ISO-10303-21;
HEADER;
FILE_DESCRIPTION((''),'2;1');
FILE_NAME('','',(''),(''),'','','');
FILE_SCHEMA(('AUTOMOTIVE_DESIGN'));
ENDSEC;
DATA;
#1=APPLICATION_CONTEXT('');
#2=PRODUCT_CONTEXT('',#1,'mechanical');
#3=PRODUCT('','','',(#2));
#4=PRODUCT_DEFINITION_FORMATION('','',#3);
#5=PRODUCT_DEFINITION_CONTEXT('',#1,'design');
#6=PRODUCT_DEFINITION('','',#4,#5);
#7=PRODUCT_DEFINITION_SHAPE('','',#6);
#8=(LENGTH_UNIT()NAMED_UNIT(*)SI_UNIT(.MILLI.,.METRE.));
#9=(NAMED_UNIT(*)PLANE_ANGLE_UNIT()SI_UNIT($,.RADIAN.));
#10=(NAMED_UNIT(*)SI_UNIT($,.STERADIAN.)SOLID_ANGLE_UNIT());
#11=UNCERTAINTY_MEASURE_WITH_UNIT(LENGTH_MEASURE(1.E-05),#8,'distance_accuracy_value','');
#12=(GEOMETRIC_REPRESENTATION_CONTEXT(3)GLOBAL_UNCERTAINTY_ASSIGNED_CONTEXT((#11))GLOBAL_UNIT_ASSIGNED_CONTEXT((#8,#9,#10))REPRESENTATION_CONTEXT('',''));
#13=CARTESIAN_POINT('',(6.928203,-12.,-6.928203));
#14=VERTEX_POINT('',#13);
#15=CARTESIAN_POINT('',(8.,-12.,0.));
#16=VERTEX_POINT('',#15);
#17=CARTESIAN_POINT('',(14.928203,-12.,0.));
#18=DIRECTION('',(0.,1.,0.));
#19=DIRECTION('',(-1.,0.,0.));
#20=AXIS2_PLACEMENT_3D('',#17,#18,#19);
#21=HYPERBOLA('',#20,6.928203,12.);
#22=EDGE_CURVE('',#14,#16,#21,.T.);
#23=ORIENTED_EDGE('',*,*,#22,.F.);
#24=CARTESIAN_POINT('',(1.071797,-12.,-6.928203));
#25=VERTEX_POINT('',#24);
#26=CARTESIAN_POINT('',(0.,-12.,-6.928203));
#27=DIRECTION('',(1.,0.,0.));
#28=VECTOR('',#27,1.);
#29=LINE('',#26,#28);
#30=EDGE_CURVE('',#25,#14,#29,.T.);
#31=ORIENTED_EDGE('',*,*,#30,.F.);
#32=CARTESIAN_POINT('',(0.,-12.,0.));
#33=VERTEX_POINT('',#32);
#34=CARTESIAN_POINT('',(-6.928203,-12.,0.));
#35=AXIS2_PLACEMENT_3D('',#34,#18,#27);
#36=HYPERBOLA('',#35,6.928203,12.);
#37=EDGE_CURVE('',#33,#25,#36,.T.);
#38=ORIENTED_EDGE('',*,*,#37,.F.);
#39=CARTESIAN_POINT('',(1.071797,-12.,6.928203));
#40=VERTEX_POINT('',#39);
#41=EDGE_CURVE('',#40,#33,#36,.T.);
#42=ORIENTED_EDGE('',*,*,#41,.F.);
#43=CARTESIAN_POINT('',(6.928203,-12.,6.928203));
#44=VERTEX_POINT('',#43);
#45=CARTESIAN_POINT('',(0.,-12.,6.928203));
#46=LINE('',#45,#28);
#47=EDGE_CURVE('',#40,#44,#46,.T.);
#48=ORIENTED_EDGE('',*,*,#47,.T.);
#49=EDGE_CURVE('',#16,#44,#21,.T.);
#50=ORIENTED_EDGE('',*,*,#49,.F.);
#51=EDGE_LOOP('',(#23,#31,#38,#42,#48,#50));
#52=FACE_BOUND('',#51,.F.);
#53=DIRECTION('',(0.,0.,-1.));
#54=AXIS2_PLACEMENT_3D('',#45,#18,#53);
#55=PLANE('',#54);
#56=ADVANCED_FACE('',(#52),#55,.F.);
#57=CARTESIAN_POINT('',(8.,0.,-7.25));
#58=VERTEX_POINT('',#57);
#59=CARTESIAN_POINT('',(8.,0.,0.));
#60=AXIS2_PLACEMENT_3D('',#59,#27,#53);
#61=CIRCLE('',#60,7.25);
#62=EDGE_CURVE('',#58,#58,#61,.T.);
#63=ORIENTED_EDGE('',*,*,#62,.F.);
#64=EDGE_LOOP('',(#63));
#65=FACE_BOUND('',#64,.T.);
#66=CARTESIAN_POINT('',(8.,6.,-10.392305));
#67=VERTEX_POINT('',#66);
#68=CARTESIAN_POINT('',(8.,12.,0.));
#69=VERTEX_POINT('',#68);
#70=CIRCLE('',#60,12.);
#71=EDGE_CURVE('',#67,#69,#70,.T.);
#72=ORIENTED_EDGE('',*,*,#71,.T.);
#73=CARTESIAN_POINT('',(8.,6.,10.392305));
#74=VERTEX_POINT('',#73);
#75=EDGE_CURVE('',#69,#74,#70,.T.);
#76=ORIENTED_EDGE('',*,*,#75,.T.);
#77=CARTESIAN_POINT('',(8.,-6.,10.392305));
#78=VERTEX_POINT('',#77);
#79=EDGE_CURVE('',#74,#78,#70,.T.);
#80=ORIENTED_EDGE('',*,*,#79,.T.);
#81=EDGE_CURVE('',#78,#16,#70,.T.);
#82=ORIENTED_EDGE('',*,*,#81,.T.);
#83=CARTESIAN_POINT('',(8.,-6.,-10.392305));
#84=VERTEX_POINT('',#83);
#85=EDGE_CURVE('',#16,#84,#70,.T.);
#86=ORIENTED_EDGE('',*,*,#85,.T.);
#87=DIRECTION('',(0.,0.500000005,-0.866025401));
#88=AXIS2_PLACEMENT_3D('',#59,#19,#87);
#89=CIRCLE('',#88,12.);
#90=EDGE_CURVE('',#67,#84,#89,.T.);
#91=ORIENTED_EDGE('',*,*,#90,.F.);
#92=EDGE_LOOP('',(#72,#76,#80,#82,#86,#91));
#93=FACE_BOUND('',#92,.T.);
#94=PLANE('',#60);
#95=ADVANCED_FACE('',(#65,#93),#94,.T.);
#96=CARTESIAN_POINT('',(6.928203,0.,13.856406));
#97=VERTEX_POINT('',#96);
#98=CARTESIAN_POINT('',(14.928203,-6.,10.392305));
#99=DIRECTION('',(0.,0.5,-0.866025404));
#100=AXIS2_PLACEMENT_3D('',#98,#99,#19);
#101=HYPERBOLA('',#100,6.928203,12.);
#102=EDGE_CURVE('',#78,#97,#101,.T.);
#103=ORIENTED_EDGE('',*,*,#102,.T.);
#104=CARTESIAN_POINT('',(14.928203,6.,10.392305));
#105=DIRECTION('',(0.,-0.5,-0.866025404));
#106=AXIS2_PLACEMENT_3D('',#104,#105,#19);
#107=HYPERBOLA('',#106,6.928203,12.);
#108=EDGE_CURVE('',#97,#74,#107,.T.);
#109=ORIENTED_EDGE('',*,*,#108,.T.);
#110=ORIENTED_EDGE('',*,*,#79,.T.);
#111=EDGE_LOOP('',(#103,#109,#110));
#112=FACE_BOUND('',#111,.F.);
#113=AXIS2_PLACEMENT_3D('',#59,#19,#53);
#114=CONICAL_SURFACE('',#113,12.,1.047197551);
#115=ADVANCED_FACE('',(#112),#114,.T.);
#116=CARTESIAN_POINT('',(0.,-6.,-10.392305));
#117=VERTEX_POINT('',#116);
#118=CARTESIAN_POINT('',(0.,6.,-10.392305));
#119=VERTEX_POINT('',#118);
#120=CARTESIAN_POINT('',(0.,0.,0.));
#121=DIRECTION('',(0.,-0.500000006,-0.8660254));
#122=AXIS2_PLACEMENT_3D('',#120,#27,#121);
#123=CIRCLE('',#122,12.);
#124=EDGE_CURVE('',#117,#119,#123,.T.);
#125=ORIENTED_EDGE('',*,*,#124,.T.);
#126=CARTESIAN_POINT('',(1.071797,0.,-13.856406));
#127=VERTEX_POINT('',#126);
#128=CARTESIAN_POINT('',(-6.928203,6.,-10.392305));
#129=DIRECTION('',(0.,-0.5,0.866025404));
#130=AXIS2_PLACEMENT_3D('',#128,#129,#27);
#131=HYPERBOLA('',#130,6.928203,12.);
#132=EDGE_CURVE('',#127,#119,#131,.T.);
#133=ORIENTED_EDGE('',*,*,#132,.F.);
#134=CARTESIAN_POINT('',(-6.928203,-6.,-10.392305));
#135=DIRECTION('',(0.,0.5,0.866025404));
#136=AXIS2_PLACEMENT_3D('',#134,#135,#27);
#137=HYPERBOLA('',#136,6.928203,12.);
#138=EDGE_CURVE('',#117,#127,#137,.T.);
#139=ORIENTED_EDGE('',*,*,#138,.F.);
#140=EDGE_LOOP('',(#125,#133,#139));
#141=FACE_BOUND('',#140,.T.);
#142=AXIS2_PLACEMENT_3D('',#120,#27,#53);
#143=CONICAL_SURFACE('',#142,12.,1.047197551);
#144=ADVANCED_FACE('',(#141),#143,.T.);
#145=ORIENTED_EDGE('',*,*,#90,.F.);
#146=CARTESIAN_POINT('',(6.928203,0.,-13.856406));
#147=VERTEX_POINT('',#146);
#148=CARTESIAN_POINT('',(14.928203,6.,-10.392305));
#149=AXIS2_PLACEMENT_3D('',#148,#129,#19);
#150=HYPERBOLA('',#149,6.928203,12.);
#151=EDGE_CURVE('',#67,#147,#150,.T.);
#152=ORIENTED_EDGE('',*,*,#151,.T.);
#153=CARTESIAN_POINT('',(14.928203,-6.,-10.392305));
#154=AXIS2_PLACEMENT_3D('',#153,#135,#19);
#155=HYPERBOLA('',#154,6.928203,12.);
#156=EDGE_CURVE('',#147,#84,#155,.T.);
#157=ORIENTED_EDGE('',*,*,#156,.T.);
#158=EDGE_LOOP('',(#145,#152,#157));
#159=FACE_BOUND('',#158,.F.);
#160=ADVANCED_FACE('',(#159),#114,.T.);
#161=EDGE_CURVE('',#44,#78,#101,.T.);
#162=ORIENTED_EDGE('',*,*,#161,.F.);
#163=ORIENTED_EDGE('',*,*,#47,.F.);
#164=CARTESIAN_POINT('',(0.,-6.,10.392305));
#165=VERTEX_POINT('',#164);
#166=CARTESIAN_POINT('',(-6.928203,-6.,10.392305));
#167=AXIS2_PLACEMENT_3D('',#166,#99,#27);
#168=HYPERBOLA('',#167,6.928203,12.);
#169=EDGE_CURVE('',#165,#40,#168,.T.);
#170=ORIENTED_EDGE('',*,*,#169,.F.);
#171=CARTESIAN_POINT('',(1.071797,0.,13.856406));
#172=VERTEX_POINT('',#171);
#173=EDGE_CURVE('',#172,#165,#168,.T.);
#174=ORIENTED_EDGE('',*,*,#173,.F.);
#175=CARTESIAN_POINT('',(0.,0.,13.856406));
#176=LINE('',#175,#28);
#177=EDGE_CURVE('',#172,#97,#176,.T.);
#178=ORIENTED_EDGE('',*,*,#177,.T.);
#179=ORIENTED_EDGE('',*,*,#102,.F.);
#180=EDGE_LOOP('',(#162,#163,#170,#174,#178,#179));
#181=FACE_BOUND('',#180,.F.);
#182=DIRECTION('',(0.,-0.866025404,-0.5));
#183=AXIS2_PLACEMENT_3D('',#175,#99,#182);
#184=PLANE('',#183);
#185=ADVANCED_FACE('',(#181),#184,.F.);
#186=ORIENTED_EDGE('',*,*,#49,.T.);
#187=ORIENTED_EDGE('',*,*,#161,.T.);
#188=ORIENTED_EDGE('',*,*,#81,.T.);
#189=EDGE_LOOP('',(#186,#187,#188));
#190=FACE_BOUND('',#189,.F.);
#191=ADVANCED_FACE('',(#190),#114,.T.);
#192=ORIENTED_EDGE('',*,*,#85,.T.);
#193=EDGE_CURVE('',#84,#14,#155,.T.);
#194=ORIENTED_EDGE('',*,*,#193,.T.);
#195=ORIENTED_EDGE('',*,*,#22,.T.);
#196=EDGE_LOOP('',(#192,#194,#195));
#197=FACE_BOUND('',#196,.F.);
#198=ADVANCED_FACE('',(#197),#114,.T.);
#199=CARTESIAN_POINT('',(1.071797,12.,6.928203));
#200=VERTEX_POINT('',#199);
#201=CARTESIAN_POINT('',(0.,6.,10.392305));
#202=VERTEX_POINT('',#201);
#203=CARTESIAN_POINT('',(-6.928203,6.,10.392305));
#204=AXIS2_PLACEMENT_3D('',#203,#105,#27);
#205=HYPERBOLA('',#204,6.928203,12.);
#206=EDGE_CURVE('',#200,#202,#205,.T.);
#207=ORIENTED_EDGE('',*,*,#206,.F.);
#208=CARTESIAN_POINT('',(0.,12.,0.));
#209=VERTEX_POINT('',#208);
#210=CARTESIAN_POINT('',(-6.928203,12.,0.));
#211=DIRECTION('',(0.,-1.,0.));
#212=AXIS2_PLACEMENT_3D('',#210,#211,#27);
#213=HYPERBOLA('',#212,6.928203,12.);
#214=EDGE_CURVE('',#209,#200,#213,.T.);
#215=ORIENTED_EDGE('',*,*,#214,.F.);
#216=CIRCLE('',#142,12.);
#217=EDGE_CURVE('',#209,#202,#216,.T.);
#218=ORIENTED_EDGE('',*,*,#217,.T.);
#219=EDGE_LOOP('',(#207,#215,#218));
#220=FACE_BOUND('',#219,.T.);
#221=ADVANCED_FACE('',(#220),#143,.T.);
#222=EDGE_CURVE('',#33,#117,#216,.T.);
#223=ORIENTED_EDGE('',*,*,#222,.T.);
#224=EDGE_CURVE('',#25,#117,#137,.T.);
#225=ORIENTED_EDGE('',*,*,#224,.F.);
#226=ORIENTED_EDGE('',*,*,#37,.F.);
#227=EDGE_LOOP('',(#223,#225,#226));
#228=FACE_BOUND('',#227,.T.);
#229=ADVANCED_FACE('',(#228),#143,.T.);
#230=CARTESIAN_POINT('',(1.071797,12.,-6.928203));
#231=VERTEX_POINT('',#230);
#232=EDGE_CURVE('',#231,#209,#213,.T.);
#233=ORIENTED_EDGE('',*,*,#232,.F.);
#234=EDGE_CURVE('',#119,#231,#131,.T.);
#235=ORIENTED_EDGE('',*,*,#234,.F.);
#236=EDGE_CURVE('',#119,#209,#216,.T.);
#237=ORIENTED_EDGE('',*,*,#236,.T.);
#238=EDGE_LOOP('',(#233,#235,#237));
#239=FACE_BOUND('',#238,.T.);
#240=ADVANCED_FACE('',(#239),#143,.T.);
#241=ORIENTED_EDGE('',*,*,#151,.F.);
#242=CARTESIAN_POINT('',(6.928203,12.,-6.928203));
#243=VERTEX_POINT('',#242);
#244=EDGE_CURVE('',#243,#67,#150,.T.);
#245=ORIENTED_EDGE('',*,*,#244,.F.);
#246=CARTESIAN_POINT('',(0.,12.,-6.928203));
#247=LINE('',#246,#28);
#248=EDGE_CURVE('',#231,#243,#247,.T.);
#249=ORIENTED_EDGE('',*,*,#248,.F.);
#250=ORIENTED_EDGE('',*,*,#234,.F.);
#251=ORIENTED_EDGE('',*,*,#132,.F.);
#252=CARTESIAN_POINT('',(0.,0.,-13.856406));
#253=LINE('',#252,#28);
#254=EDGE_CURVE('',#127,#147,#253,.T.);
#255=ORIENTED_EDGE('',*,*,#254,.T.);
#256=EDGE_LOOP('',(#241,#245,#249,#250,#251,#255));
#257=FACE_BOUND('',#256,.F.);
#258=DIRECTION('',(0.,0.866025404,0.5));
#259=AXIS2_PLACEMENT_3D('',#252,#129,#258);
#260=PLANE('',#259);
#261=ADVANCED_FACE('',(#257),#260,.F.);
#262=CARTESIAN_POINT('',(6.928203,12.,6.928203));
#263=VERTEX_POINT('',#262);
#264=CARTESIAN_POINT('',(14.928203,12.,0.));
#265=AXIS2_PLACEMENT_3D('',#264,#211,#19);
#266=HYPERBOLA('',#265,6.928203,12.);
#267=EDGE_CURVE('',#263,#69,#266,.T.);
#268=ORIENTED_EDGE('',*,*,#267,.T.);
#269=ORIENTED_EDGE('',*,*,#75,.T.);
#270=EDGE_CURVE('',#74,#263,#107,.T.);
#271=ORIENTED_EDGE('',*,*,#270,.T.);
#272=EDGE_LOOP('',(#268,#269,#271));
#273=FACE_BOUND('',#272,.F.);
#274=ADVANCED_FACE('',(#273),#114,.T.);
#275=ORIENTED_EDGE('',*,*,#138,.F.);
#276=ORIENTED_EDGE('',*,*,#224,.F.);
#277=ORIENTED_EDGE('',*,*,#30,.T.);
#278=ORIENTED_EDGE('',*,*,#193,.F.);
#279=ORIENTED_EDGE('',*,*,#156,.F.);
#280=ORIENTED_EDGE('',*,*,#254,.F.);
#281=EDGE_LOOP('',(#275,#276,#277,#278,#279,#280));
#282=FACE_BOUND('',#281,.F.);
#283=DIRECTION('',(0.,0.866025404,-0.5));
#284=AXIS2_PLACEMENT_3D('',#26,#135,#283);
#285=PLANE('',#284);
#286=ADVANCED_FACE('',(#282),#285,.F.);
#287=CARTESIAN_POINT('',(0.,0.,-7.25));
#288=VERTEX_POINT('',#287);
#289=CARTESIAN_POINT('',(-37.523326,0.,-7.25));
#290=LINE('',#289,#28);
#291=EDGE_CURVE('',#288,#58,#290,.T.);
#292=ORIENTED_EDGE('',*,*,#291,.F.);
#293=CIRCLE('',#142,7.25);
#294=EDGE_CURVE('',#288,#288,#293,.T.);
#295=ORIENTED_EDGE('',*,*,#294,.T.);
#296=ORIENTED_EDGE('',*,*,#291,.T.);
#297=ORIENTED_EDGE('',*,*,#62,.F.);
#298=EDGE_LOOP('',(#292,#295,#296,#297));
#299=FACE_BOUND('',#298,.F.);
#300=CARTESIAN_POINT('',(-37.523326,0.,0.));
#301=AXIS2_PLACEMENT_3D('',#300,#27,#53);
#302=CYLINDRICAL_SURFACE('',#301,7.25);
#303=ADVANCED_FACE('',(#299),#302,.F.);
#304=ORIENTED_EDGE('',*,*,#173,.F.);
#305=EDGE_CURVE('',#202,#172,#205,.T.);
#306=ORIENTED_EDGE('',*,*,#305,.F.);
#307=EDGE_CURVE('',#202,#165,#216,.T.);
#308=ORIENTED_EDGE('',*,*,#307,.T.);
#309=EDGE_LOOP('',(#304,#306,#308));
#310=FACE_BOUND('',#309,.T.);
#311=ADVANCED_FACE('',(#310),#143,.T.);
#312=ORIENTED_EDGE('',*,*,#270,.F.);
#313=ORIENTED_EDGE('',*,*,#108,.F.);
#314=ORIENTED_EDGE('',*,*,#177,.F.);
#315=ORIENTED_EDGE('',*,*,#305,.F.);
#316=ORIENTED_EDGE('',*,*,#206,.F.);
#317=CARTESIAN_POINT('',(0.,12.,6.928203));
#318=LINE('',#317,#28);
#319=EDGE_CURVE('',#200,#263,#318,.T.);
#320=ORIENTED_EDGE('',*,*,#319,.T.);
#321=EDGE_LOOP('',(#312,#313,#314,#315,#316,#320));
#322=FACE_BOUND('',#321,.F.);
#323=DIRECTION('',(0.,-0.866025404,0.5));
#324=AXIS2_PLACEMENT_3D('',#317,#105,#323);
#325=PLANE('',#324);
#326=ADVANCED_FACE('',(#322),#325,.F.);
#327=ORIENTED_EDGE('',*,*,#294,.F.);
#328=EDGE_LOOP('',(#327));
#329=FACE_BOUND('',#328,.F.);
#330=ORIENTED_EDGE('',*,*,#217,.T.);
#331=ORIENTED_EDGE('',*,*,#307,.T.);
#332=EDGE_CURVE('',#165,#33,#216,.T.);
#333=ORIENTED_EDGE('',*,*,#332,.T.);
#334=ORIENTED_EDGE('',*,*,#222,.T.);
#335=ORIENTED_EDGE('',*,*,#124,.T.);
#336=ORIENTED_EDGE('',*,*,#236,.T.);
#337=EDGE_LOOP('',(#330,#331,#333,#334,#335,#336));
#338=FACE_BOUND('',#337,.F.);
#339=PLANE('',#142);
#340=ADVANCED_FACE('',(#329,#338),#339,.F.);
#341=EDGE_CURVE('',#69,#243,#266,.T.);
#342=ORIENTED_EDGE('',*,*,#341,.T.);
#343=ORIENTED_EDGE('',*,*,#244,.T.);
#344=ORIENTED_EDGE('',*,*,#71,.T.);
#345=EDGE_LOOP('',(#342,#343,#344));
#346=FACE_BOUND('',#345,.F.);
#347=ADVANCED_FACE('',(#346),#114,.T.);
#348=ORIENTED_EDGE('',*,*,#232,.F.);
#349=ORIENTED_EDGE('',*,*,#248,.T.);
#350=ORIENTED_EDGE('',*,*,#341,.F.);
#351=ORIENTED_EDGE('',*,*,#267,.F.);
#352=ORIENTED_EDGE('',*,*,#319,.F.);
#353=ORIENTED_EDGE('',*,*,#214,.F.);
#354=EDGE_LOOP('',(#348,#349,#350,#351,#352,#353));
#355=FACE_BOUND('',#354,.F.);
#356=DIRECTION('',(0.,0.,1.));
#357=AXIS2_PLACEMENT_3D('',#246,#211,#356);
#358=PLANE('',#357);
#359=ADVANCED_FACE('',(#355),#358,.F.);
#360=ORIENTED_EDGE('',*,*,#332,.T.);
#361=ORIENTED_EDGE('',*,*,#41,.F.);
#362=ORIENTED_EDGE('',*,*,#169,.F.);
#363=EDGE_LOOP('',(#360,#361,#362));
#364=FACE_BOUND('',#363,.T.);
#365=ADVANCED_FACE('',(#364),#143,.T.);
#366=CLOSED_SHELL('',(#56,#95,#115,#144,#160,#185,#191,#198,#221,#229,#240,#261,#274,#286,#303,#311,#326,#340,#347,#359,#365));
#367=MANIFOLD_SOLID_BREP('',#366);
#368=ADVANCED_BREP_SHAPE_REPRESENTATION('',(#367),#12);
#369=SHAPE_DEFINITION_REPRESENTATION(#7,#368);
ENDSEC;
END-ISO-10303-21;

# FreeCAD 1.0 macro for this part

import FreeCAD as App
import Part
import Sketcher
Q = App.Units.Quantity


def add_polygon(sketch, points):
    """Adds a closed chain of lines whose ends are joined by coincident constraints."""
    first, n = sketch.GeometryCount, len(points)
    for a, b in zip(points, points[1:] + points[:1]):
        sketch.addGeometry(Part.LineSegment(App.Vector(*a, 0), App.Vector(*b, 0)), False)
    for i in range(n):
        sketch.addConstraint(Sketcher.Constraint("Coincident", first + i, 2, first + (i + 1) % n, 1))

doc = App.newDocument("Part")
body = doc.addObject("PartDesign::Body", "Body")

# Sketch on YZ plane
sketch1 = doc.addObject("Sketcher::SketchObject", "Sketch")
body.addObject(sketch1)
sketch1.AttachmentSupport = (doc.YZ_Plane, [""])
sketch1.MapMode = "FlatFace"
add_polygon(sketch1, [(0, -14), (12, -7), (12, 7), (0, 14), (-12, 7), (-12, -7)])  # lines 0-5
sketch1.addConstraint(Sketcher.Constraint("Vertical", 1))
sketch1.addConstraint(Sketcher.Constraint("Vertical", 4))
sketch1.addConstraint(Sketcher.Constraint("Symmetric", 0, 2, 3, 2, -1, 1))
sketch1.addConstraint(Sketcher.Constraint("Symmetric", 2, 2, 5, 2, -1, 1))
sketch1.addConstraint(Sketcher.Constraint("PointOnObject", 2, 2, -2))
sketch1.addConstraint(Sketcher.Constraint("Parallel", 2, 5))
sketch1.addConstraint(Sketcher.Constraint("Horizontal", 1, 2, 3, 2))
sketch1.addConstraint(Sketcher.Constraint("Angle", 0, Q("30 deg")))
sketch1.addConstraint(Sketcher.Constraint("DistanceX", -1, 1, 0, 2, Q("12 mm")))
sketch1.addConstraint(Sketcher.Constraint("DistanceY", 1, 1, 1, 2, Q("13.856406 mm")))
pad1 = doc.addObject("PartDesign::Pad", "Pad")
body.addObject(pad1)
pad1.Profile = sketch1
pad1.Length = 8

# Sketch on YZ plane
sketch2 = doc.addObject("Sketcher::SketchObject", "Sketch001")
body.addObject(sketch2)
sketch2.AttachmentSupport = (doc.YZ_Plane, [""])
sketch2.MapMode = "FlatFace"
sketch2.addGeometry(Part.Circle(App.Vector(0, 0, 0), App.Vector(0, 0, 1), 7), False)
sketch2.addConstraint(Sketcher.Constraint("Coincident", 0, 3, -1, 1))
sketch2.addConstraint(Sketcher.Constraint("Diameter", 0, Q("14.5 mm")))
doc.recompute()
hole = doc.addObject("PartDesign::Hole", "Hole")
body.addObject(hole)
hole.Profile = sketch2
hole.ThreadType = "None"
hole.Diameter = 14.5
hole.DepthType = "ThroughAll"
hole.Reversed = True

# Sketch on XZ plane
sketch3 = doc.addObject("Sketcher::SketchObject", "Sketch002")
body.addObject(sketch3)
sketch3.AttachmentSupport = (doc.XZ_Plane, [""])
sketch3.MapMode = "FlatFace"
add_polygon(sketch3, [(0, -12), (1.1, -13.9), (0, -13.9)])  # lines 0-2
sketch3.addConstraint(Sketcher.Constraint("Horizontal", 1))
sketch3.addConstraint(Sketcher.Constraint("Vertical", 2))
sketch3.addConstraint(Sketcher.Constraint("PointOnObject", 1, 2, -2))
sketch3.addConstraint(Sketcher.Constraint("Angle", 0, Q("-60 deg")))
sketch3.addConstraint(Sketcher.Constraint("DistanceY", 2, 2, -1, 1, Q("12 mm")))
sketch3.addConstraint(Sketcher.Constraint("DistanceX", 1, 2, 1, 1, Q("1.071797 mm")))
groove = doc.addObject("PartDesign::Groove", "Groove")
body.addObject(groove)
groove.Profile = sketch3
groove.ReferenceAxis = (sketch3, ["H_Axis"])
groove.Angle = 360
doc.recompute()

datumplane = doc.addObject("PartDesign::Plane", "DatumPlane")
body.addObject(datumplane)
datumplane.AttachmentSupport = (doc.YZ_Plane, [""])
datumplane.MapMode = "FlatFace"
datumplane.AttachmentOffset = App.Placement(App.Vector(0, 0, 4), App.Rotation())
mirrored = doc.addObject("PartDesign::Mirrored", "Mirrored")
body.addObject(mirrored)
mirrored.Originals = [groove]
mirrored.MirrorPlane = (datumplane, [""])
body.Tip = mirrored

doc.recompute()
